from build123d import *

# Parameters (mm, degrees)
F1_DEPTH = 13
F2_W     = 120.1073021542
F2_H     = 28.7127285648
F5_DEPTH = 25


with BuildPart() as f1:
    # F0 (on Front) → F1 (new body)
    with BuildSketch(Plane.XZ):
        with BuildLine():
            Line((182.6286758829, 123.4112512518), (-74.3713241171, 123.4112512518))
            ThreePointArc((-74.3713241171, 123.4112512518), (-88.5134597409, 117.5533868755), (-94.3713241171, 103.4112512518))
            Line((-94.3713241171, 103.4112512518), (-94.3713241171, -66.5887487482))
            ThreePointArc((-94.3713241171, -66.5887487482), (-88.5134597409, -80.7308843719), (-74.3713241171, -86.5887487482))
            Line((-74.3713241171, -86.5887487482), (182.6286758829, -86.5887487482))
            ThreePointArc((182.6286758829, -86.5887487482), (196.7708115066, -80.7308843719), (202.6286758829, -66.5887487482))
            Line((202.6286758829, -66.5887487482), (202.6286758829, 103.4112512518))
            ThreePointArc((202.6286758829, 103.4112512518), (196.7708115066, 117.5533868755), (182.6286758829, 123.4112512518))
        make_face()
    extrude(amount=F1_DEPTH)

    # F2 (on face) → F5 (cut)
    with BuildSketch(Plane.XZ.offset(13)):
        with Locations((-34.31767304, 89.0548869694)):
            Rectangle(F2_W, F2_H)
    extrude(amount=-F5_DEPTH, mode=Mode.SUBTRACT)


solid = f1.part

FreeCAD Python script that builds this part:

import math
import FreeCAD as App
import Part
import Sketcher


def add_polygon(sketch, points):
    """Adds a closed chain of lines whose ends are joined by coincident constraints."""
    first, n = sketch.GeometryCount, len(points)
    for a, b in zip(points, points[1:] + points[:1]):
        sketch.addGeometry(Part.LineSegment(App.Vector(*a, 0), App.Vector(*b, 0)), False)
    for i in range(n):
        sketch.addConstraint(Sketcher.Constraint("Coincident", first + i, 2, first + (i + 1) % n, 1))

doc = App.newDocument("Part")
body = doc.addObject("PartDesign::Body", "Body")

# Sketch on XZ plane
sketch1 = body.newObject("Sketcher::SketchObject", "Sketch")
sketch1.AttachmentSupport = (doc.getObject("XZ_Plane"), [""])
sketch1.MapMode = "FlatFace"
sketch1.addGeometry(Part.LineSegment(App.Vector(182.628676, 123.411251, 0), App.Vector(-74.371324, 123.411251, 0)), False)
sketch1.addGeometry(Part.ArcOfCircle(Part.Circle(App.Vector(-74.371324, 103.411251, 0), App.Vector(0, 0, 1), 20), math.radians(90), math.radians(180)), False)
sketch1.addGeometry(Part.LineSegment(App.Vector(-94.371324, 103.411251, 0), App.Vector(-94.371324, -66.588749, 0)), False)
sketch1.addGeometry(Part.ArcOfCircle(Part.Circle(App.Vector(-74.371324, -66.588749, 0), App.Vector(0, 0, 1), 20), math.radians(180), math.radians(270)), False)
sketch1.addGeometry(Part.LineSegment(App.Vector(-74.371324, -86.588749, 0), App.Vector(182.628676, -86.588749, 0)), False)
sketch1.addGeometry(Part.ArcOfCircle(Part.Circle(App.Vector(182.628676, -66.588749, 0), App.Vector(0, 0, 1), 20), math.radians(-90), math.radians(0)), False)
sketch1.addGeometry(Part.LineSegment(App.Vector(202.628676, -66.588749, 0), App.Vector(202.628676, 103.411251, 0)), False)
sketch1.addGeometry(Part.ArcOfCircle(Part.Circle(App.Vector(182.628676, 103.411251, 0), App.Vector(0, 0, 1), 20), math.radians(0), math.radians(90)), False)
sketch1.addConstraint(Sketcher.Constraint("Tangent", 0, 2, 1, 1))
sketch1.addConstraint(Sketcher.Constraint("Tangent", 1, 2, 2, 1))
sketch1.addConstraint(Sketcher.Constraint("Tangent", 2, 2, 3, 1))
sketch1.addConstraint(Sketcher.Constraint("Tangent", 3, 2, 4, 1))
sketch1.addConstraint(Sketcher.Constraint("Tangent", 4, 2, 5, 1))
sketch1.addConstraint(Sketcher.Constraint("Tangent", 5, 2, 6, 1))
sketch1.addConstraint(Sketcher.Constraint("Tangent", 6, 2, 7, 1))
sketch1.addConstraint(Sketcher.Constraint("Tangent", 7, 2, 0, 1))
sketch1.addConstraint(Sketcher.Constraint("Horizontal", 0))
sketch1.addConstraint(Sketcher.Constraint("Vertical", 2))
sketch1.addConstraint(Sketcher.Constraint("Horizontal", 4))
sketch1.addConstraint(Sketcher.Constraint("Vertical", 6))
sketch1.addConstraint(Sketcher.Constraint("Equal", 1, 3))
sketch1.addConstraint(Sketcher.Constraint("Equal", 3, 5))
sketch1.addConstraint(Sketcher.Constraint("Equal", 5, 7))
sketch1.addConstraint(Sketcher.Constraint("Radius", 1, 20.0))
sketch1.addConstraint(Sketcher.Constraint("DistanceX", 0, 2, 0, 1, 257.0))
sketch1.addConstraint(Sketcher.Constraint("DistanceY", 2, 2, 2, 1, 170.0))
sketch1.addConstraint(Sketcher.Constraint("DistanceY", -1, 1, 1, 3, 103.411251))
sketch1.addConstraint(Sketcher.Constraint("DistanceX", 1, 3, -1, 1, 74.371324))
pad1 = body.newObject("PartDesign::Pad", "Pad")
pad1.Profile = sketch1
pad1.Length = 13

# Sketch on XZ plane
sketch2 = body.newObject("Sketcher::SketchObject", "Sketch001")
sketch2.AttachmentSupport = (doc.getObject("XZ_Plane"), [""])
sketch2.MapMode = "FlatFace"
sketch2.AttachmentOffset = App.Placement(App.Vector(0, 0, 13), App.Rotation())
add_polygon(sketch2, [(-94.371324, 103.411251), (-94.371324, 74.698523), (25.735978, 74.698523), (25.735978, 103.411251)])  # lines 0-3
sketch2.addConstraint(Sketcher.Constraint("Vertical", 0))
sketch2.addConstraint(Sketcher.Constraint("Horizontal", 1))
sketch2.addConstraint(Sketcher.Constraint("Vertical", 2))
sketch2.addConstraint(Sketcher.Constraint("Horizontal", 3))
sketch2.addConstraint(Sketcher.Constraint("DistanceY", 0, 2, 0, 1, 28.712729))
sketch2.addConstraint(Sketcher.Constraint("DistanceX", 1, 1, 1, 2, 120.107302))
sketch2.addConstraint(Sketcher.Constraint("DistanceX", -1, 1, 1, 2, 25.735978))
sketch2.addConstraint(Sketcher.Constraint("DistanceY", -1, 1, 2, 2, 103.411251))
pocket1 = body.newObject("PartDesign::Pocket", "Pocket")
pocket1.Profile = sketch2
pocket1.Length = 25

doc.recompute()
